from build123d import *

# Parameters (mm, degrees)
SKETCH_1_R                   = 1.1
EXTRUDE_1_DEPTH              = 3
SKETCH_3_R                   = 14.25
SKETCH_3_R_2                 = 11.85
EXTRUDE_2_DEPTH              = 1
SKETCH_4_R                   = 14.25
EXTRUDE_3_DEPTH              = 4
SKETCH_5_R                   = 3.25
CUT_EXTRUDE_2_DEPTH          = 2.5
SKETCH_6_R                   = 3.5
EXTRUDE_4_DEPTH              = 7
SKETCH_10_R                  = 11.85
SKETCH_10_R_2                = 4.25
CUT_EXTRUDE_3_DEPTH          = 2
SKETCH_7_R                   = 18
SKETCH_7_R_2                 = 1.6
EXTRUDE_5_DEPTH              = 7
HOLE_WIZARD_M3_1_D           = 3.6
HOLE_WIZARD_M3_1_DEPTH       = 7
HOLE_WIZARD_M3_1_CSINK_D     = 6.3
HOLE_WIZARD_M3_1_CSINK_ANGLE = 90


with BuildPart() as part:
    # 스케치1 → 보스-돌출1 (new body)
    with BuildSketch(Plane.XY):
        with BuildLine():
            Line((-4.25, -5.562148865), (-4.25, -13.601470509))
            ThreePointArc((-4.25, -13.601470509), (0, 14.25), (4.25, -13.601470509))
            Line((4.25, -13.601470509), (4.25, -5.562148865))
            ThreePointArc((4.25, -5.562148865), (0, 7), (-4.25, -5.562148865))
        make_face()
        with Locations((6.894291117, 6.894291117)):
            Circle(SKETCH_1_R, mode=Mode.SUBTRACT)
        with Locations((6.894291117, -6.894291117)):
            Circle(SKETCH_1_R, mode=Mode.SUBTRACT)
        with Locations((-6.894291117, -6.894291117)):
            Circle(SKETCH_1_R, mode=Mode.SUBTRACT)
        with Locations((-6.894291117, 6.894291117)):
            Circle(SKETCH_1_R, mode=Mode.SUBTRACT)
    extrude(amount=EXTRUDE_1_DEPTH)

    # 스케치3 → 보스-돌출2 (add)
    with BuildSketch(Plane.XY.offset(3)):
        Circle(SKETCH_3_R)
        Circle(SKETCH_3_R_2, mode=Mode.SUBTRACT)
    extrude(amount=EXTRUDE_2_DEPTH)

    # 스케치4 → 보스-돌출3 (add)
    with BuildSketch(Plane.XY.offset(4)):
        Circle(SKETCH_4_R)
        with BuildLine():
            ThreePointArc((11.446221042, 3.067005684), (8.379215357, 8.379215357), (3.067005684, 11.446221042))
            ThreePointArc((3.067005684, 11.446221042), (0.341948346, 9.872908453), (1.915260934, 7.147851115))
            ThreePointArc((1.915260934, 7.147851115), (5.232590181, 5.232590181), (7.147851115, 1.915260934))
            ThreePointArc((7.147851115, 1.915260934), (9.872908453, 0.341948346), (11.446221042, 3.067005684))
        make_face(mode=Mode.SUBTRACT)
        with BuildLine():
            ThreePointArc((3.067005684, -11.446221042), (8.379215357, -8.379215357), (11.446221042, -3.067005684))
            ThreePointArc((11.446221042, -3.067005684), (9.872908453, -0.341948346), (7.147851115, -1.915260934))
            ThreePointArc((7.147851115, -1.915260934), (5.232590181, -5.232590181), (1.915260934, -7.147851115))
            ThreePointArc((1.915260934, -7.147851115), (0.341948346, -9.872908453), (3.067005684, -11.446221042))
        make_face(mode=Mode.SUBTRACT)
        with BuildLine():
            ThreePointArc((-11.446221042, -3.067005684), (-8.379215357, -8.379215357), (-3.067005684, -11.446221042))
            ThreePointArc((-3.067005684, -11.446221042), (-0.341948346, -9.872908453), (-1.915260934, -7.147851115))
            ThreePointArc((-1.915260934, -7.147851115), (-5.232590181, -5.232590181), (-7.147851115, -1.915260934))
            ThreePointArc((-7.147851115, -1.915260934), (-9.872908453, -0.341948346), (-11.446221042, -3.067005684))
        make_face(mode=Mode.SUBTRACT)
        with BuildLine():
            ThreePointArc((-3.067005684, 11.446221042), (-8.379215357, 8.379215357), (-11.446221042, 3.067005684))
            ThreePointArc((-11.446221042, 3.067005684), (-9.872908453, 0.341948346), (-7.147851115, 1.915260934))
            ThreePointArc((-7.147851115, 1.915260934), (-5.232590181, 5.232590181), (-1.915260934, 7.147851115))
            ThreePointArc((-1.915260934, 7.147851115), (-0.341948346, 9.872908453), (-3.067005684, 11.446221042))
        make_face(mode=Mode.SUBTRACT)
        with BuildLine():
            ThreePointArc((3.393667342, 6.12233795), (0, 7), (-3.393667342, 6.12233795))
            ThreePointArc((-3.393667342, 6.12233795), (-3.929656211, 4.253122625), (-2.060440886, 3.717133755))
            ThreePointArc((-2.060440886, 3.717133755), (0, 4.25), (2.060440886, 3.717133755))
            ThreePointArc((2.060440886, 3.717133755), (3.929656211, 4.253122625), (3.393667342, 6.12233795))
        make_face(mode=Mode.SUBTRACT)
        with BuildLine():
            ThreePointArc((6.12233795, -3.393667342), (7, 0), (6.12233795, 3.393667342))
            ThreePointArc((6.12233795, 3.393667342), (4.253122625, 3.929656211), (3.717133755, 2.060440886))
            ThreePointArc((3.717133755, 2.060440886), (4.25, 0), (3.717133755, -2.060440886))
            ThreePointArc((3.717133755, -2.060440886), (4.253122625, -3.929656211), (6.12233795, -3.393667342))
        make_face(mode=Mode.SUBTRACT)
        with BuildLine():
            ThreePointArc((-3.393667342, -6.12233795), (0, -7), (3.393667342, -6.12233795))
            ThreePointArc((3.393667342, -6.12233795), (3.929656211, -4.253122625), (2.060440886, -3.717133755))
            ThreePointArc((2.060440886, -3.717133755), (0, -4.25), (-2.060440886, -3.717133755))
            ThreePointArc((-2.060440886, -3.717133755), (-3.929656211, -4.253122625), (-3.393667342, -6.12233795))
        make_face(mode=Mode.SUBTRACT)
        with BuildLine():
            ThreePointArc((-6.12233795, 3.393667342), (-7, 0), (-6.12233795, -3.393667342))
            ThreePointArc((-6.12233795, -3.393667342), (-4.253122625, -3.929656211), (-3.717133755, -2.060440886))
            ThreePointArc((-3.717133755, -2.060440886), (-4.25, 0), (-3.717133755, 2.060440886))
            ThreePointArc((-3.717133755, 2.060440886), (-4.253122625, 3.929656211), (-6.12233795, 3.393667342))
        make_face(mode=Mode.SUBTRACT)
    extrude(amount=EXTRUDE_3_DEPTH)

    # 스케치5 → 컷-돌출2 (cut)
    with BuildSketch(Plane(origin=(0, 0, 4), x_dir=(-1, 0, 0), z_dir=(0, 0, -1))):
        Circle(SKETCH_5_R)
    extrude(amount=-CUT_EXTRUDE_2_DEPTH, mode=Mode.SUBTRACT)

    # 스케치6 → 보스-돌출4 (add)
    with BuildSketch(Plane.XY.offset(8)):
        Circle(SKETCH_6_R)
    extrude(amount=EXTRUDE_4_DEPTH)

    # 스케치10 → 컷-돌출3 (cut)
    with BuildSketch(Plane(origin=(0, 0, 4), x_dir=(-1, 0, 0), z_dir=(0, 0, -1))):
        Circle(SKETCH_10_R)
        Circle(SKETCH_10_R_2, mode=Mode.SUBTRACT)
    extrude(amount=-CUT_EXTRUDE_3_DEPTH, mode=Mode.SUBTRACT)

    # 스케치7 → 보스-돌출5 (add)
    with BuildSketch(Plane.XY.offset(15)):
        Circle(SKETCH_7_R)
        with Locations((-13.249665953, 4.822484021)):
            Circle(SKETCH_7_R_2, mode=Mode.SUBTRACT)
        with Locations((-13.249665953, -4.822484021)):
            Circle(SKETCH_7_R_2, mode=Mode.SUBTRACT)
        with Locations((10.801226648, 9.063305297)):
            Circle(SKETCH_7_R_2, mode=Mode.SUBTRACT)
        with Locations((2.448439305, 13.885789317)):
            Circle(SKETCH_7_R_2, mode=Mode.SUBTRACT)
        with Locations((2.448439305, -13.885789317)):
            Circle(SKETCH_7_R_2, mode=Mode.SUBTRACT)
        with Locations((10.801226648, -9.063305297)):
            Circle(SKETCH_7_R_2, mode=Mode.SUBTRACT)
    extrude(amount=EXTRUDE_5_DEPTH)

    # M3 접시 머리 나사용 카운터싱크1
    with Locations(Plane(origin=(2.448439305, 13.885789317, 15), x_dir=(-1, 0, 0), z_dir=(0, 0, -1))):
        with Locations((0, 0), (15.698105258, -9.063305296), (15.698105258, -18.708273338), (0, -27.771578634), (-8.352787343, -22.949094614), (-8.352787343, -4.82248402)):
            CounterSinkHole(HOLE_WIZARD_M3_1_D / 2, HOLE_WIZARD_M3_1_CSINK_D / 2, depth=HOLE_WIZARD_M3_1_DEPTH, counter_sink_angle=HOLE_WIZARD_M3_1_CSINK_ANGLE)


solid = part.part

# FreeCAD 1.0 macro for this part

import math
import FreeCAD as App
import Part
import Sketcher

doc = App.newDocument("Part")
body = doc.addObject("PartDesign::Body", "Body")

sketch1 = body.newObject("Sketcher::SketchObject", "Sketch")
sketch1.AttachmentSupport = (doc.getObject("XY_Plane"), [""])
sketch1.MapMode = "FlatFace"
sketch1.addGeometry([
    Part.LineSegment(App.Vector(-4.2, -13.6, 0), App.Vector(-4.2, -5.6, 0)),
    Part.ArcOfCircle(Part.Circle(App.Vector(0, 0, 0), App.Vector(0, 0, 1), 7), math.radians(-53), math.radians(233)),
    Part.LineSegment(App.Vector(4.2, -5.6, 0), App.Vector(4.2, -13.6, 0)),
    Part.ArcOfCircle(Part.Circle(App.Vector(0, 0, 0), App.Vector(0, 0, 1), 14.2), math.radians(-73), math.radians(253)),
    Part.Circle(App.Vector(6.9, -6.9, 0), App.Vector(0, 0, 1), 1.1),
    Part.Circle(App.Vector(-6.9, -6.9, 0), App.Vector(0, 0, 1), 1.1),
    Part.Circle(App.Vector(6.9, 6.9, 0), App.Vector(0, 0, 1), 1.1),
    Part.Circle(App.Vector(-6.9, 6.9, 0), App.Vector(0, 0, 1), 1.1),
], False)
sketch1.addConstraint([
    Sketcher.Constraint("Coincident", 0, 2, 1, 2),
    Sketcher.Constraint("Coincident", 1, 1, 2, 1),
    Sketcher.Constraint("Coincident", 2, 2, 3, 1),
    Sketcher.Constraint("Coincident", 3, 2, 0, 1),
    Sketcher.Constraint("Vertical", 0),
    Sketcher.Constraint("Vertical", 2),
    Sketcher.Constraint("Coincident", 1, 3, -1, 1),
    Sketcher.Constraint("Coincident", 3, 3, -1, 1),
    Sketcher.Constraint("Equal", 4, 5),
    Sketcher.Constraint("Equal", 5, 6),
    Sketcher.Constraint("Equal", 6, 7),
    Sketcher.Constraint("Symmetric", 5, 3, 6, 3, -1, 1),
    Sketcher.Constraint("Symmetric", 4, 3, 7, 3, -1, 1),
    Sketcher.Constraint("Symmetric", 4, 3, 5, 3, -2),
    Sketcher.Constraint("Horizontal", 0, 2, 1, 1),
    Sketcher.Constraint("Radius", 1, 7.0),
    Sketcher.Constraint("Diameter", 4, 2.2),
    Sketcher.Constraint("Radius", 3, 14.25),
    Sketcher.Constraint("DistanceX", 0, 2, 1, 1, 8.5),
    Sketcher.Constraint("DistanceX", -1, 1, 4, 3, 6.894291),
    Sketcher.Constraint("DistanceY", 4, 3, -1, 1, 6.894291),
])
pad1 = body.newObject("PartDesign::Pad", "Pad")
pad1.Profile = sketch1
pad1.Length = 3

sketch2 = body.newObject("Sketcher::SketchObject", "Sketch001")
sketch2.AttachmentSupport = (doc.getObject("XY_Plane"), [""])
sketch2.MapMode = "FlatFace"
sketch2.AttachmentOffset = App.Placement(App.Vector(0, 0, 3), App.Rotation())
sketch2.addGeometry([
    Part.Circle(App.Vector(0, 0, 0), App.Vector(0, 0, 1), 14),
    Part.Circle(App.Vector(0, 0, 0), App.Vector(0, 0, 1), 12),
], False)
sketch2.addConstraint([
    Sketcher.Constraint("Coincident", 0, 3, -1, 1),
    Sketcher.Constraint("Coincident", 1, 3, -1, 1),
    Sketcher.Constraint("Diameter", 0, 28.5),
    Sketcher.Constraint("Diameter", 1, 23.7),
])
pad2 = body.newObject("PartDesign::Pad", "Pad001")
pad2.Profile = sketch2
pad2.Length = 1

sketch3 = body.newObject("Sketcher::SketchObject", "Sketch002")
sketch3.AttachmentSupport = (doc.getObject("XY_Plane"), [""])
sketch3.MapMode = "FlatFace"
sketch3.AttachmentOffset = App.Placement(App.Vector(0, 0, 4), App.Rotation())
sketch3.addGeometry([
    Part.Circle(App.Vector(0, 0, 0), App.Vector(0, 0, 1), 14.2),
    Part.ArcOfCircle(Part.Circle(App.Vector(0, 0, 0), App.Vector(0, 0, 1), 11.9), math.radians(-165), math.radians(-105)),
    Part.ArcOfCircle(Part.Circle(App.Vector(-9.3, -2.5, 0), App.Vector(0, 0, 1), 2.2), math.radians(15), math.radians(195)),
    Part.ArcOfCircle(Part.Circle(App.Vector(0, 0, 0), App.Vector(0, 0, 1), 7.4), math.radians(-165), math.radians(-105)),
    Part.ArcOfCircle(Part.Circle(App.Vector(-2.5, -9.3, 0), App.Vector(0, 0, 1), 2.2), math.radians(-105), math.radians(75)),
    Part.ArcOfCircle(Part.Circle(App.Vector(0, 0, 0), App.Vector(0, 0, 1), 7), math.radians(151), math.radians(209)),
    Part.ArcOfCircle(Part.Circle(App.Vector(-4.9, 2.7, 0), App.Vector(0, 0, 1), 1.4), math.radians(-29), math.radians(151)),
    Part.ArcOfCircle(Part.Circle(App.Vector(0, 0, 0), App.Vector(0, 0, 1), 4.2), math.radians(151), math.radians(209)),
    Part.ArcOfCircle(Part.Circle(App.Vector(-4.9, -2.7, 0), App.Vector(0, 0, 1), 1.4), math.radians(-151), math.radians(29)),
    Part.ArcOfCircle(Part.Circle(App.Vector(0, 0, 0), App.Vector(0, 0, 1), 11.9), math.radians(-75), math.radians(-15)),
    Part.ArcOfCircle(Part.Circle(App.Vector(2.5, -9.3, 0), App.Vector(0, 0, 1), 2.2), math.radians(105), math.radians(285)),
    Part.ArcOfCircle(Part.Circle(App.Vector(0, 0, 0), App.Vector(0, 0, 1), 7.4), math.radians(-75), math.radians(-15)),
    Part.ArcOfCircle(Part.Circle(App.Vector(9.3, -2.5, 0), App.Vector(0, 0, 1), 2.2), math.radians(-15), math.radians(165)),
    Part.ArcOfCircle(Part.Circle(App.Vector(0, 0, 0), App.Vector(0, 0, 1), 7), math.radians(-119), math.radians(-61)),
    Part.ArcOfCircle(Part.Circle(App.Vector(-2.7, -4.9, 0), App.Vector(0, 0, 1), 1.4), math.radians(61), math.radians(241)),
    Part.ArcOfCircle(Part.Circle(App.Vector(0, 0, 0), App.Vector(0, 0, 1), 4.2), math.radians(-119), math.radians(-61)),
    Part.ArcOfCircle(Part.Circle(App.Vector(2.7, -4.9, 0), App.Vector(0, 0, 1), 1.4), math.radians(-61), math.radians(119)),
    Part.ArcOfCircle(Part.Circle(App.Vector(0, 0, 0), App.Vector(0, 0, 1), 7), math.radians(-29), math.radians(29)),
    Part.ArcOfCircle(Part.Circle(App.Vector(4.9, -2.7, 0), App.Vector(0, 0, 1), 1.4), math.radians(151), math.radians(331)),
    Part.ArcOfCircle(Part.Circle(App.Vector(0, 0, 0), App.Vector(0, 0, 1), 4.2), math.radians(-29), math.radians(29)),
    Part.ArcOfCircle(Part.Circle(App.Vector(4.9, 2.7, 0), App.Vector(0, 0, 1), 1.4), math.radians(29), math.radians(209)),
    Part.ArcOfCircle(Part.Circle(App.Vector(0, 0, 0), App.Vector(0, 0, 1), 11.9), math.radians(105), math.radians(165)),
    Part.ArcOfCircle(Part.Circle(App.Vector(-2.5, 9.3, 0), App.Vector(0, 0, 1), 2.2), math.radians(-75), math.radians(105)),
    Part.ArcOfCircle(Part.Circle(App.Vector(0, 0, 0), App.Vector(0, 0, 1), 7.4), math.radians(105), math.radians(165)),
    Part.ArcOfCircle(Part.Circle(App.Vector(-9.3, 2.5, 0), App.Vector(0, 0, 1), 2.2), math.radians(165), math.radians(345)),
    Part.ArcOfCircle(Part.Circle(App.Vector(0, 0, 0), App.Vector(0, 0, 1), 7), math.radians(61), math.radians(119)),
    Part.ArcOfCircle(Part.Circle(App.Vector(2.7, 4.9, 0), App.Vector(0, 0, 1), 1.4), math.radians(-119), math.radians(61)),
    Part.ArcOfCircle(Part.Circle(App.Vector(0, 0, 0), App.Vector(0, 0, 1), 4.2), math.radians(61), math.radians(119)),
    Part.ArcOfCircle(Part.Circle(App.Vector(-2.7, 4.9, 0), App.Vector(0, 0, 1), 1.4), math.radians(119), math.radians(299)),
    Part.ArcOfCircle(Part.Circle(App.Vector(0, 0, 0), App.Vector(0, 0, 1), 11.9), math.radians(15), math.radians(75)),
    Part.ArcOfCircle(Part.Circle(App.Vector(9.3, 2.5, 0), App.Vector(0, 0, 1), 2.2), math.radians(-165), math.radians(15)),
    Part.ArcOfCircle(Part.Circle(App.Vector(0, 0, 0), App.Vector(0, 0, 1), 7.4), math.radians(15), math.radians(75)),
    Part.ArcOfCircle(Part.Circle(App.Vector(2.5, 9.3, 0), App.Vector(0, 0, 1), 2.2), math.radians(75), math.radians(255)),
], False)
sketch3.addConstraint([
    Sketcher.Constraint("Tangent", 1, 1, 2, 2),
    Sketcher.Constraint("Tangent", 2, 1, 3, 1),
    Sketcher.Constraint("Tangent", 3, 2, 4, 2),
    Sketcher.Constraint("Tangent", 4, 1, 1, 2),
    Sketcher.Constraint("Tangent", 5, 1, 6, 2),
    Sketcher.Constraint("Tangent", 6, 1, 7, 1),
    Sketcher.Constraint("Tangent", 7, 2, 8, 2),
    Sketcher.Constraint("Tangent", 8, 1, 5, 2),
    Sketcher.Constraint("Tangent", 9, 1, 10, 2),
    Sketcher.Constraint("Tangent", 10, 1, 11, 1),
    Sketcher.Constraint("Tangent", 11, 2, 12, 2),
    Sketcher.Constraint("Tangent", 12, 1, 9, 2),
    Sketcher.Constraint("Tangent", 13, 1, 14, 2),
    Sketcher.Constraint("Tangent", 14, 1, 15, 1),
    Sketcher.Constraint("Tangent", 15, 2, 16, 2),
    Sketcher.Constraint("Tangent", 16, 1, 13, 2),
    Sketcher.Constraint("Tangent", 17, 1, 18, 2),
    Sketcher.Constraint("Tangent", 18, 1, 19, 1),
    Sketcher.Constraint("Tangent", 19, 2, 20, 2),
    Sketcher.Constraint("Tangent", 20, 1, 17, 2),
    Sketcher.Constraint("Tangent", 21, 1, 22, 2),
    Sketcher.Constraint("Tangent", 22, 1, 23, 1),
    Sketcher.Constraint("Tangent", 23, 2, 24, 2),
    Sketcher.Constraint("Tangent", 24, 1, 21, 2),
    Sketcher.Constraint("Tangent", 25, 1, 26, 2),
    Sketcher.Constraint("Tangent", 26, 1, 27, 1),
    Sketcher.Constraint("Tangent", 27, 2, 28, 2),
    Sketcher.Constraint("Tangent", 28, 1, 25, 2),
    Sketcher.Constraint("Tangent", 29, 1, 30, 2),
    Sketcher.Constraint("Tangent", 30, 1, 31, 1),
    Sketcher.Constraint("Tangent", 31, 2, 32, 2),
    Sketcher.Constraint("Tangent", 32, 1, 29, 2),
    Sketcher.Constraint("Coincident", 0, 3, -1, 1),
    Sketcher.Constraint("Coincident", 1, 3, -1, 1),
    Sketcher.Constraint("Coincident", 3, 3, -1, 1),
    Sketcher.Constraint("Coincident", 5, 3, -1, 1),
    Sketcher.Constraint("Coincident", 7, 3, -1, 1),
    Sketcher.Constraint("Coincident", 9, 3, -1, 1),
    Sketcher.Constraint("Coincident", 11, 3, -1, 1),
    Sketcher.Constraint("Coincident", 13, 3, -1, 1),
    Sketcher.Constraint("Coincident", 15, 3, -1, 1),
    Sketcher.Constraint("Coincident", 17, 3, -1, 1),
    Sketcher.Constraint("Coincident", 19, 3, -1, 1),
    Sketcher.Constraint("Coincident", 21, 3, -1, 1),
    Sketcher.Constraint("Coincident", 23, 3, -1, 1),
    Sketcher.Constraint("Coincident", 25, 3, -1, 1),
    Sketcher.Constraint("Coincident", 27, 3, -1, 1),
    Sketcher.Constraint("Coincident", 29, 3, -1, 1),
    Sketcher.Constraint("Coincident", 31, 3, -1, 1),
    Sketcher.Constraint("Equal", 1, 9),
    Sketcher.Constraint("Equal", 4, 10),
    Sketcher.Constraint("Equal", 5, 13),
    Sketcher.Constraint("Equal", 8, 14),
    Sketcher.Constraint("Equal", 13, 17),
    Sketcher.Constraint("Equal", 16, 18),
    Sketcher.Constraint("Equal", 9, 21),
    Sketcher.Constraint("Equal", 12, 22),
    Sketcher.Constraint("Equal", 17, 25),
    Sketcher.Constraint("Equal", 20, 26),
    Sketcher.Constraint("Equal", 21, 29),
    Sketcher.Constraint("Equal", 24, 30),
    Sketcher.Constraint("Horizontal", 4, 3, 10, 3),
    Sketcher.Constraint("Horizontal", 2, 3, 12, 3),
    Sketcher.Constraint("Horizontal", 14, 3, 16, 3),
    Sketcher.Constraint("Horizontal", 8, 3, 18, 3),
    Sketcher.Constraint("Horizontal", 6, 3, 20, 3),
    Sketcher.Constraint("Horizontal", 26, 3, 28, 3),
    Sketcher.Constraint("Horizontal", 24, 3, 30, 3),
    Sketcher.Constraint("Horizontal", 22, 3, 32, 3),
    Sketcher.Constraint("Vertical", 6, 3, 8, 3),
    Sketcher.Constraint("Vertical", 4, 3, 22, 3),
    Sketcher.Constraint("Vertical", 2, 3, 24, 3),
    Sketcher.Constraint("Vertical", 16, 3, 26, 3),
    Sketcher.Constraint("Radius", 5, 7.0),
    Sketcher.Constraint("Diameter", 0, 28.5),
    Sketcher.Constraint("Radius", 3, 7.4),
    Sketcher.Constraint("Radius", 1, 11.85),
    Sketcher.Constraint("Radius", 7, 4.25),
    Sketcher.Constraint("DistanceX", 1, 1, -1, 1, 11.446221),
    Sketcher.Constraint("DistanceX", 3, 2, -1, 1, 1.915261),
    Sketcher.Constraint("DistanceY", -1, 1, 6, 1, 2.060441),
    Sketcher.Constraint("DistanceX", 14, 1, -1, 1, 2.060441),
])
pad3 = body.newObject("PartDesign::Pad", "Pad002")
pad3.Profile = sketch3
pad3.Length = 4

sketch4 = body.newObject("Sketcher::SketchObject", "Sketch003")
sketch4.AttachmentSupport = (doc.getObject("XY_Plane"), [""])
sketch4.MapMode = "FlatFace"
sketch4.AttachmentOffset = App.Placement(App.Vector(0, 0, 4), App.Rotation())
sketch4.addGeometry(Part.Circle(App.Vector(0, 0, 0), App.Vector(0, 0, 1), 3.2), False)
sketch4.addConstraint([
    Sketcher.Constraint("Coincident", 0, 3, -1, 1),
    Sketcher.Constraint("Diameter", 0, 6.5),
])
pocket1 = body.newObject("PartDesign::Pocket", "Pocket")
pocket1.Profile = sketch4
pocket1.Length = 2.5
pocket1.Reversed = True

sketch5 = body.newObject("Sketcher::SketchObject", "Sketch004")
sketch5.AttachmentSupport = (doc.getObject("XY_Plane"), [""])
sketch5.MapMode = "FlatFace"
sketch5.AttachmentOffset = App.Placement(App.Vector(0, 0, 8), App.Rotation())
sketch5.addGeometry(Part.Circle(App.Vector(0, 0, 0), App.Vector(0, 0, 1), 3.5), False)
sketch5.addConstraint([
    Sketcher.Constraint("Coincident", 0, 3, -1, 1),
    Sketcher.Constraint("Diameter", 0, 7.0),
])
pad4 = body.newObject("PartDesign::Pad", "Pad003")
pad4.Profile = sketch5
pad4.Length = 7

sketch6 = body.newObject("Sketcher::SketchObject", "Sketch005")
sketch6.AttachmentSupport = (doc.getObject("XY_Plane"), [""])
sketch6.MapMode = "FlatFace"
sketch6.AttachmentOffset = App.Placement(App.Vector(0, 0, 4), App.Rotation())
sketch6.addGeometry([
    Part.Circle(App.Vector(0, 0, 0), App.Vector(0, 0, 1), 11.8),
    Part.Circle(App.Vector(0, 0, 0), App.Vector(0, 0, 1), 4.2),
], False)
sketch6.addConstraint([
    Sketcher.Constraint("Coincident", 0, 3, -1, 1),
    Sketcher.Constraint("Coincident", 1, 3, -1, 1),
    Sketcher.Constraint("Diameter", 0, 23.7),
    Sketcher.Constraint("Diameter", 1, 8.5),
])
pocket2 = body.newObject("PartDesign::Pocket", "Pocket001")
pocket2.Profile = sketch6
pocket2.Length = 2
pocket2.Reversed = True

sketch7 = body.newObject("Sketcher::SketchObject", "Sketch006")
sketch7.AttachmentSupport = (doc.getObject("XY_Plane"), [""])
sketch7.MapMode = "FlatFace"
sketch7.AttachmentOffset = App.Placement(App.Vector(0, 0, 15), App.Rotation())
sketch7.addGeometry([
    Part.Circle(App.Vector(0, 0, 0), App.Vector(0, 0, 1), 18),
    Part.Circle(App.Vector(-13.2, -4.8, 0), App.Vector(0, 0, 1), 1.6),
    Part.Circle(App.Vector(2.4, -13.9, 0), App.Vector(0, 0, 1), 1.6),
    Part.Circle(App.Vector(10.8, -9.1, 0), App.Vector(0, 0, 1), 1.6),
    Part.Circle(App.Vector(-13.2, 4.8, 0), App.Vector(0, 0, 1), 1.6),
    Part.Circle(App.Vector(2.4, 13.9, 0), App.Vector(0, 0, 1), 1.6),
    Part.Circle(App.Vector(10.8, 9.1, 0), App.Vector(0, 0, 1), 1.6),
], False)
sketch7.addConstraint([
    Sketcher.Constraint("Coincident", 0, 3, -1, 1),
    Sketcher.Constraint("Equal", 1, 2),
    Sketcher.Constraint("Equal", 2, 3),
    Sketcher.Constraint("Equal", 3, 4),
    Sketcher.Constraint("Equal", 4, 5),
    Sketcher.Constraint("Equal", 5, 6),
    Sketcher.Constraint("Symmetric", 1, 3, 4, 3, -1),
    Sketcher.Constraint("Symmetric", 2, 3, 5, 3, -1),
    Sketcher.Constraint("Symmetric", 3, 3, 6, 3, -1),
    Sketcher.Constraint("Diameter", 0, 36.0),
    Sketcher.Constraint("Diameter", 1, 3.2),
    Sketcher.Constraint("DistanceX", -1, 1, 2, 3, 2.448439),
    Sketcher.Constraint("DistanceY", 2, 3, -1, 1, 13.885789),
    Sketcher.Constraint("DistanceY", 3, 3, 1, 3, 4.240821),
    Sketcher.Constraint("DistanceY", 1, 3, 4, 3, 9.644968),
    Sketcher.Constraint("DistanceX", 1, 3, -1, 1, 13.249666),
    Sketcher.Constraint("DistanceX", -1, 1, 3, 3, 10.801227),
])
pad5 = body.newObject("PartDesign::Pad", "Pad004")
pad5.Profile = sketch7
pad5.Length = 7

sketch8 = body.newObject("Sketcher::SketchObject", "Sketch007")
sketch8.AttachmentSupport = (doc.getObject("XY_Plane"), [""])
sketch8.MapMode = "FlatFace"
sketch8.AttachmentOffset = App.Placement(App.Vector(0, 0, 15), App.Rotation())
sketch8.addGeometry([
    Part.Circle(App.Vector(2.4, 13.9, 0), App.Vector(0, 0, 1), 1.8),
    Part.Circle(App.Vector(-13.2, 4.8, 0), App.Vector(0, 0, 1), 1.8),
    Part.Circle(App.Vector(-13.2, -4.8, 0), App.Vector(0, 0, 1), 1.8),
    Part.Circle(App.Vector(2.4, -13.9, 0), App.Vector(0, 0, 1), 1.8),
    Part.Circle(App.Vector(10.8, -9.1, 0), App.Vector(0, 0, 1), 1.8),
    Part.Circle(App.Vector(10.8, 9.1, 0), App.Vector(0, 0, 1), 1.8),
], False)
sketch8.addConstraint([
    Sketcher.Constraint("Equal", 0, 1),
    Sketcher.Constraint("Equal", 1, 2),
    Sketcher.Constraint("Equal", 2, 3),
    Sketcher.Constraint("Equal", 3, 4),
    Sketcher.Constraint("Equal", 4, 5),
    Sketcher.Constraint("Symmetric", 1, 3, 2, 3, -1),
    Sketcher.Constraint("Symmetric", 0, 3, 3, 3, -1),
    Sketcher.Constraint("Symmetric", 4, 3, 5, 3, -1),
    Sketcher.Constraint("Diameter", 0, 3.6),
    Sketcher.Constraint("DistanceX", -1, 1, 0, 3, 2.448439),
    Sketcher.Constraint("DistanceY", -1, 1, 0, 3, 13.885789),
    Sketcher.Constraint("DistanceY", 2, 3, 1, 3, 9.644968),
    Sketcher.Constraint("DistanceY", 4, 3, 2, 3, 4.240821),
    Sketcher.Constraint("DistanceX", 1, 3, -1, 1, 13.249666),
    Sketcher.Constraint("DistanceX", -1, 1, 4, 3, 10.801227),
])
doc.recompute()
hole = body.newObject("PartDesign::Hole", "Hole")
hole.Profile = sketch8
hole.ThreadType = "None"
hole.Diameter = 3.6
hole.DepthType = "Dimension"
hole.Depth = 7
hole.DrillPoint = "Flat"
hole.HoleCutType = "Countersink"
hole.HoleCutDiameter = 6.3
hole.HoleCutCountersinkAngle = 90
hole.Reversed = True

doc.recompute()
